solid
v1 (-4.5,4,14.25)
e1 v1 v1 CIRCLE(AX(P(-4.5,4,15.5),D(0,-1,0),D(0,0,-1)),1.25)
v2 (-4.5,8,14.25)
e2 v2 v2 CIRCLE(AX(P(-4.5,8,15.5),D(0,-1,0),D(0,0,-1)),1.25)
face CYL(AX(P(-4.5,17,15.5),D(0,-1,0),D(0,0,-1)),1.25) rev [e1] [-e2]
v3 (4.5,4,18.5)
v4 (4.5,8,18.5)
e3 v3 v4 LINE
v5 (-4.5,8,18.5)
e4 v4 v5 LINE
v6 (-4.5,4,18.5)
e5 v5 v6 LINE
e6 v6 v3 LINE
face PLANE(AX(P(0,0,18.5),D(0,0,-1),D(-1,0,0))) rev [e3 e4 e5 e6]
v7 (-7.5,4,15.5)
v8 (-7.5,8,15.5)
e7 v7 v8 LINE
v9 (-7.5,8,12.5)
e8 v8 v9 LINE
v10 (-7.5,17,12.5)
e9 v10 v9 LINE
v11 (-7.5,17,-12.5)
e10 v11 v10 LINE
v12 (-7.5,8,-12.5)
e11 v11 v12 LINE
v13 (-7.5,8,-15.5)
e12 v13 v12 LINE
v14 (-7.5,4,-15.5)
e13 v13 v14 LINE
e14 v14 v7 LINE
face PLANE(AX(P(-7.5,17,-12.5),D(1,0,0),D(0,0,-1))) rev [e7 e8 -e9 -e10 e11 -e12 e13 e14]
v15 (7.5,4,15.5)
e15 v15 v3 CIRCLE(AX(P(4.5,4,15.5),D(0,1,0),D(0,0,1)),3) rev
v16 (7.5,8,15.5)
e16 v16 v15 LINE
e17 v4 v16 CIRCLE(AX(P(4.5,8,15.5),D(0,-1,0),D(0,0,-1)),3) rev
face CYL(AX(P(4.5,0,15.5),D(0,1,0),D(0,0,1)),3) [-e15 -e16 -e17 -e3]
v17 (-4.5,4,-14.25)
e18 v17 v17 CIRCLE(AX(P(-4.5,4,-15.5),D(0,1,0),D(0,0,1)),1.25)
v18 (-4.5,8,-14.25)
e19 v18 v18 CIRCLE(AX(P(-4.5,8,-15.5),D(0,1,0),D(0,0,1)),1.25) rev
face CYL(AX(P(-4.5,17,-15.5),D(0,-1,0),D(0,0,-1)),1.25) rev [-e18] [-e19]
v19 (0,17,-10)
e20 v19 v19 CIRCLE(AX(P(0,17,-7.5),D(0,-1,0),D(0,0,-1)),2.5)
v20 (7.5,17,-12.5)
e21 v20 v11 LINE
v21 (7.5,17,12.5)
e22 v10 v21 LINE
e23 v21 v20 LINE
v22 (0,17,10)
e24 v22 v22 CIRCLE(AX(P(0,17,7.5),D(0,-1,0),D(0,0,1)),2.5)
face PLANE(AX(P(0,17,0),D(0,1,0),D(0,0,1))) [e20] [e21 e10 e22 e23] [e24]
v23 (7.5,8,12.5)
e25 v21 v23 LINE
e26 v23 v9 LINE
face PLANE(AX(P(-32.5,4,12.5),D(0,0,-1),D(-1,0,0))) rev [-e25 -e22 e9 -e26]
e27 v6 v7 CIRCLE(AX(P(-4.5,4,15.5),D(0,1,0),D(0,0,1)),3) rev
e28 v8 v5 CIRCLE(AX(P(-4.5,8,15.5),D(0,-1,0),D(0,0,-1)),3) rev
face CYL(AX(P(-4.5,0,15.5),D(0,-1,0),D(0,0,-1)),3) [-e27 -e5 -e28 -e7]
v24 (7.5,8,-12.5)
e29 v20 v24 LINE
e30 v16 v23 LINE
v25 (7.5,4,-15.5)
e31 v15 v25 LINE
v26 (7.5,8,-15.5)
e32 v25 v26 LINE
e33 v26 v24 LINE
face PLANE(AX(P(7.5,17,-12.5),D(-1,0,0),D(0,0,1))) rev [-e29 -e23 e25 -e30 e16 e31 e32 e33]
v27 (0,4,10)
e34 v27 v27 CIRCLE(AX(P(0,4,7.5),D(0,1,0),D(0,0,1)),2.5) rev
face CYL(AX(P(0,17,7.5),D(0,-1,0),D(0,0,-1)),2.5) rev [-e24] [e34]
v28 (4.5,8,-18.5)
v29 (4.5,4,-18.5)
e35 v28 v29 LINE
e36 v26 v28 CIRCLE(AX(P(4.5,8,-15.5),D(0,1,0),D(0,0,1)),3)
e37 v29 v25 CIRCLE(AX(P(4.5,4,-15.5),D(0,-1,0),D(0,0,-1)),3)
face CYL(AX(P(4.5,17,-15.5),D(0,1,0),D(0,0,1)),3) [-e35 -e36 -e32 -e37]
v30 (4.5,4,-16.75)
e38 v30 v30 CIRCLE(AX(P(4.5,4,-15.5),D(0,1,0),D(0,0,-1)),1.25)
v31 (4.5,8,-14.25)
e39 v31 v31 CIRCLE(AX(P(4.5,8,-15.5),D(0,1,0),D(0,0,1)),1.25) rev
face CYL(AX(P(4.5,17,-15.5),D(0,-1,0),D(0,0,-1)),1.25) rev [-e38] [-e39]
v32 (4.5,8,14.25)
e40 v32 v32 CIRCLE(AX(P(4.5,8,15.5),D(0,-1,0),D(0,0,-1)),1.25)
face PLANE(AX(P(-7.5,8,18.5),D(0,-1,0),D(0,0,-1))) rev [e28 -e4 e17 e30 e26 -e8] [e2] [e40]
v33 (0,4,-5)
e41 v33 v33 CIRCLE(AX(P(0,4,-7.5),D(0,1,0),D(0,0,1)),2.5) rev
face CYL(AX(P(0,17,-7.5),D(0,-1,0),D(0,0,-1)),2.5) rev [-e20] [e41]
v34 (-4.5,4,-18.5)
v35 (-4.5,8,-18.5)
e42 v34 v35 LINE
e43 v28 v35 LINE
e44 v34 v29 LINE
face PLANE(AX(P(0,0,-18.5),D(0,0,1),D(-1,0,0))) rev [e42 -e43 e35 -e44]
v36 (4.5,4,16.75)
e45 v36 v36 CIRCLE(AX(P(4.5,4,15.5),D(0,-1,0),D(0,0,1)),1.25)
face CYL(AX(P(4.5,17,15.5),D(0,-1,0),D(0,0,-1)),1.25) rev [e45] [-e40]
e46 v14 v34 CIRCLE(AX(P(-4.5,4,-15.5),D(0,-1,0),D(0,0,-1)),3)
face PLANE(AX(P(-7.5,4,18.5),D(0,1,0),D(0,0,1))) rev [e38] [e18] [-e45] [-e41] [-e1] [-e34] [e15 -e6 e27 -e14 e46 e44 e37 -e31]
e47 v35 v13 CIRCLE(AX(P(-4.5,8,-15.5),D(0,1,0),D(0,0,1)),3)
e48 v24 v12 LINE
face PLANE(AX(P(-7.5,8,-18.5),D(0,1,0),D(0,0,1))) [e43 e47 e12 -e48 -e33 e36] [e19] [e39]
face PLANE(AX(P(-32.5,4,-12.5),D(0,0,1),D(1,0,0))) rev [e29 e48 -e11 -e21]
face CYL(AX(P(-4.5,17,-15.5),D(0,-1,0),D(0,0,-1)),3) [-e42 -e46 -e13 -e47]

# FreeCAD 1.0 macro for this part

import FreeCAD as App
import Part
import Sketcher
from FreeCAD import Vector
Q = App.Units.Quantity


def edges_at(feature, points):
    """Names of the edges that pass closest to the given points."""
    edges = feature.Shape.Edges
    near = lambda p: min(range(len(edges)), key=lambda i: edges[i].distToShape(Part.Vertex(*p))[0])
    return sorted({f"Edge{near(p) + 1}" for p in points})

doc = App.newDocument("Part")
body = doc.addObject("PartDesign::Body", "Body")

sketch1 = body.newObject("Sketcher::SketchObject", "Sketch")
sketch1.AttachmentSupport = (doc.getObject("XZ_Plane"), [""])
sketch1.MapMode = "FlatFace"
sketch1.addGeometry([
    Part.LineSegment(Vector(-32, -12, 0), Vector(-32, 12, 0)),
    Part.LineSegment(Vector(-32, 12, 0), Vector(32, 12, 0)),
    Part.LineSegment(Vector(32, 12, 0), Vector(32, -12, 0)),
    Part.LineSegment(Vector(32, -12, 0), Vector(-32, -12, 0)),
], False)
sketch1.addConstraint([
    Sketcher.Constraint("Coincident", 0, 2, 1, 1),
    Sketcher.Constraint("Coincident", 1, 2, 2, 1),
    Sketcher.Constraint("Coincident", 2, 2, 3, 1),
    Sketcher.Constraint("Coincident", 3, 2, 0, 1),
    Sketcher.Constraint("Vertical", 0),
    Sketcher.Constraint("Horizontal", 1),
    Sketcher.Constraint("Vertical", 2),
    Sketcher.Constraint("Horizontal", 3),
    Sketcher.Constraint("Symmetric", 0, 2, 2, 2, -1, 1),
    Sketcher.Constraint("DistanceX", 1, 1, 1, 2, Q("65 mm")),
    Sketcher.Constraint("DistanceY", 0, 1, 0, 2, Q("25 mm")),
])
pad1 = body.newObject("PartDesign::Pad", "Pad")
pad1.Profile = sketch1
pad1.Length = 4
pad1.Reversed = True

sketch2 = body.newObject("Sketcher::SketchObject", "Sketch001")
sketch2.AttachmentSupport = (doc.getObject("XZ_Plane"), [""])
sketch2.MapMode = "FlatFace"
sketch2.AttachmentOffset = App.Placement(Vector(0, 0, -4), App.Rotation())
sketch2.addGeometry([
    Part.LineSegment(Vector(-8, -12, 0), Vector(-8, 12, 0)),
    Part.LineSegment(Vector(-8, 12, 0), Vector(8, 12, 0)),
    Part.LineSegment(Vector(8, 12, 0), Vector(8, -12, 0)),
    Part.LineSegment(Vector(8, -12, 0), Vector(-8, -12, 0)),
], False)
sketch2.addConstraint([
    Sketcher.Constraint("Coincident", 0, 2, 1, 1),
    Sketcher.Constraint("Coincident", 1, 2, 2, 1),
    Sketcher.Constraint("Coincident", 2, 2, 3, 1),
    Sketcher.Constraint("Coincident", 3, 2, 0, 1),
    Sketcher.Constraint("Vertical", 0),
    Sketcher.Constraint("Horizontal", 1),
    Sketcher.Constraint("Vertical", 2),
    Sketcher.Constraint("Horizontal", 3),
    Sketcher.Constraint("Symmetric", 0, 2, 2, 2, -1, 1),
    Sketcher.Constraint("DistanceX", 1, 1, 1, 2, Q("15 mm")),
    Sketcher.Constraint("DistanceY", 0, 1, 0, 2, Q("25 mm")),
])
pad2 = body.newObject("PartDesign::Pad", "Pad001")
pad2.Profile = sketch2
pad2.Length = 13
pad2.Reversed = True

sketch3 = body.newObject("Sketcher::SketchObject", "Sketch002")
sketch3.AttachmentSupport = (doc.getObject("XZ_Plane"), [""])
sketch3.MapMode = "FlatFace"
sketch3.addGeometry([
    Part.Circle(Vector(0, -7.5, 0), Vector(0, 0, 1), 2.5),
    Part.Circle(Vector(0, 7.5, 0), Vector(0, 0, 1), 2.5),
    Part.Circle(Vector(-22, 0, 0), Vector(0, 0, 1), 4),
    Part.Circle(Vector(22, 0, 0), Vector(0, 0, 1), 4),
], False)
sketch3.addConstraint([
    Sketcher.Constraint("Equal", 0, 1),
    Sketcher.Constraint("Equal", 2, 3),
    Sketcher.Constraint("Symmetric", 0, 3, 1, 3, -1, 1),
    Sketcher.Constraint("Symmetric", 2, 3, 3, 3, -1, 1),
    Sketcher.Constraint("PointOnObject", 0, 3, -2),
    Sketcher.Constraint("PointOnObject", 2, 3, -1),
    Sketcher.Constraint("Diameter", 0, Q("5 mm")),
    Sketcher.Constraint("Diameter", 2, Q("8 mm")),
    Sketcher.Constraint("DistanceX", 2, 3, -1, 1, Q("22 mm")),
    Sketcher.Constraint("DistanceY", 0, 3, 1, 3, Q("15 mm")),
])
pocket1 = body.newObject("PartDesign::Pocket", "Pocket")
pocket1.Profile = sketch3
pocket1.Type = "ThroughAll"

sketch4 = body.newObject("Sketcher::SketchObject", "Sketch003")
sketch4.AttachmentSupport = (doc.getObject("XY_Plane"), [""])
sketch4.MapMode = "FlatFace"
sketch4.AttachmentOffset = App.Placement(Vector(0, 0, 12.5), App.Rotation())
sketch4.addGeometry([
    Part.LineSegment(Vector(-7.5, 8, 0), Vector(-7.5, 4, 0)),
    Part.LineSegment(Vector(-7.5, 4, 0), Vector(7.5, 4, 0)),
    Part.LineSegment(Vector(7.5, 4, 0), Vector(7.5, 8, 0)),
    Part.LineSegment(Vector(7.5, 8, 0), Vector(-7.5, 8, 0)),
], False)
sketch4.addConstraint([
    Sketcher.Constraint("Coincident", 0, 2, 1, 1),
    Sketcher.Constraint("Coincident", 1, 2, 2, 1),
    Sketcher.Constraint("Coincident", 2, 2, 3, 1),
    Sketcher.Constraint("Coincident", 3, 2, 0, 1),
    Sketcher.Constraint("Vertical", 0),
    Sketcher.Constraint("Horizontal", 1),
    Sketcher.Constraint("Vertical", 2),
    Sketcher.Constraint("Horizontal", 3),
    Sketcher.Constraint("DistanceX", 1, 1, 1, 2, Q("15 mm")),
    Sketcher.Constraint("DistanceY", 0, 2, 0, 1, Q("4 mm")),
    Sketcher.Constraint("DistanceY", -1, 1, 0, 2, Q("4 mm")),
    Sketcher.Constraint("DistanceX", 0, 2, -1, 1, Q("7.5 mm")),
])
pad3 = body.newObject("PartDesign::Pad", "Pad002")
pad3.Profile = sketch4
pad3.Length = 6

sketch5 = body.newObject("Sketcher::SketchObject", "Sketch004")
sketch5.AttachmentSupport = (doc.getObject("XZ_Plane"), [""])
sketch5.MapMode = "FlatFace"
sketch5.AttachmentOffset = App.Placement(Vector(0, 0, -4), App.Rotation())
sketch5.addGeometry([
    Part.Circle(Vector(-4.5, 15.5, 0), Vector(0, 0, 1), 1.2),
    Part.Circle(Vector(4.5, 15.5, 0), Vector(0, 0, 1), 1.2),
], False)
sketch5.addConstraint([
    Sketcher.Constraint("Equal", 0, 1),
    Sketcher.Constraint("Symmetric", 0, 3, 1, 3, -2),
    Sketcher.Constraint("Diameter", 0, Q("2.5 mm")),
    Sketcher.Constraint("DistanceX", 0, 3, 1, 3, Q("9 mm")),
    Sketcher.Constraint("DistanceY", -1, 1, 0, 3, Q("15.5 mm")),
])
pocket2 = body.newObject("PartDesign::Pocket", "Pocket001")
pocket2.Profile = sketch5
pocket2.Type = "ThroughAll"
doc.recompute()

mirrored = body.newObject("PartDesign::Mirrored", "Mirrored")
mirrored.Originals = [pad3, pocket2]
mirrored.MirrorPlane = (doc.getObject("XY_Plane"), [""])
body.Tip = mirrored
doc.recompute()

fillet = body.newObject("PartDesign::Fillet", "Fillet")
fillet.Base = (mirrored, edges_at(mirrored, [
    (-7.5, 6, 18.5),
    (7.5, 6, 18.5),
    (-7.5, 6, -18.5),
    (7.5, 6, -18.5),
]))
fillet.Radius = 3

sketch6 = body.newObject("Sketcher::SketchObject", "Sketch005")
sketch6.AttachmentSupport = (doc.getObject("XY_Plane"), [""])
sketch6.MapMode = "FlatFace"
sketch6.AttachmentOffset = App.Placement(Vector(0, 0, -12.5), App.Rotation())
sketch6.addGeometry([
    Part.LineSegment(Vector(-32.5, 4, 0), Vector(32.5, 4, 0)),
    Part.LineSegment(Vector(32.5, 4, 0), Vector(32.5, 0, 0)),
    Part.LineSegment(Vector(32.5, 0, 0), Vector(-32.5, 0, 0)),
    Part.LineSegment(Vector(-32.5, 0, 0), Vector(-32.5, 4, 0)),
], False)
sketch6.addConstraint([
    Sketcher.Constraint("Coincident", 0, 2, 1, 1),
    Sketcher.Constraint("Coincident", 1, 2, 2, 1),
    Sketcher.Constraint("Coincident", 2, 2, 3, 1),
    Sketcher.Constraint("Coincident", 3, 2, 0, 1),
    Sketcher.Constraint("Horizontal", 0),
    Sketcher.Constraint("Vertical", 1),
    Sketcher.Constraint("Horizontal", 2),
    Sketcher.Constraint("Vertical", 3),
    Sketcher.Constraint("Symmetric", 1, 2, 2, 2, -1, 1),
    Sketcher.Constraint("DistanceX", 0, 1, 0, 2, Q("65 mm")),
    Sketcher.Constraint("DistanceY", 1, 2, 1, 1, Q("4 mm")),
])
pocket3 = body.newObject("PartDesign::Pocket", "Pocket002")
pocket3.Profile = sketch6
pocket3.Type = "ThroughAll"
pocket3.Reversed = True

doc.recompute()
